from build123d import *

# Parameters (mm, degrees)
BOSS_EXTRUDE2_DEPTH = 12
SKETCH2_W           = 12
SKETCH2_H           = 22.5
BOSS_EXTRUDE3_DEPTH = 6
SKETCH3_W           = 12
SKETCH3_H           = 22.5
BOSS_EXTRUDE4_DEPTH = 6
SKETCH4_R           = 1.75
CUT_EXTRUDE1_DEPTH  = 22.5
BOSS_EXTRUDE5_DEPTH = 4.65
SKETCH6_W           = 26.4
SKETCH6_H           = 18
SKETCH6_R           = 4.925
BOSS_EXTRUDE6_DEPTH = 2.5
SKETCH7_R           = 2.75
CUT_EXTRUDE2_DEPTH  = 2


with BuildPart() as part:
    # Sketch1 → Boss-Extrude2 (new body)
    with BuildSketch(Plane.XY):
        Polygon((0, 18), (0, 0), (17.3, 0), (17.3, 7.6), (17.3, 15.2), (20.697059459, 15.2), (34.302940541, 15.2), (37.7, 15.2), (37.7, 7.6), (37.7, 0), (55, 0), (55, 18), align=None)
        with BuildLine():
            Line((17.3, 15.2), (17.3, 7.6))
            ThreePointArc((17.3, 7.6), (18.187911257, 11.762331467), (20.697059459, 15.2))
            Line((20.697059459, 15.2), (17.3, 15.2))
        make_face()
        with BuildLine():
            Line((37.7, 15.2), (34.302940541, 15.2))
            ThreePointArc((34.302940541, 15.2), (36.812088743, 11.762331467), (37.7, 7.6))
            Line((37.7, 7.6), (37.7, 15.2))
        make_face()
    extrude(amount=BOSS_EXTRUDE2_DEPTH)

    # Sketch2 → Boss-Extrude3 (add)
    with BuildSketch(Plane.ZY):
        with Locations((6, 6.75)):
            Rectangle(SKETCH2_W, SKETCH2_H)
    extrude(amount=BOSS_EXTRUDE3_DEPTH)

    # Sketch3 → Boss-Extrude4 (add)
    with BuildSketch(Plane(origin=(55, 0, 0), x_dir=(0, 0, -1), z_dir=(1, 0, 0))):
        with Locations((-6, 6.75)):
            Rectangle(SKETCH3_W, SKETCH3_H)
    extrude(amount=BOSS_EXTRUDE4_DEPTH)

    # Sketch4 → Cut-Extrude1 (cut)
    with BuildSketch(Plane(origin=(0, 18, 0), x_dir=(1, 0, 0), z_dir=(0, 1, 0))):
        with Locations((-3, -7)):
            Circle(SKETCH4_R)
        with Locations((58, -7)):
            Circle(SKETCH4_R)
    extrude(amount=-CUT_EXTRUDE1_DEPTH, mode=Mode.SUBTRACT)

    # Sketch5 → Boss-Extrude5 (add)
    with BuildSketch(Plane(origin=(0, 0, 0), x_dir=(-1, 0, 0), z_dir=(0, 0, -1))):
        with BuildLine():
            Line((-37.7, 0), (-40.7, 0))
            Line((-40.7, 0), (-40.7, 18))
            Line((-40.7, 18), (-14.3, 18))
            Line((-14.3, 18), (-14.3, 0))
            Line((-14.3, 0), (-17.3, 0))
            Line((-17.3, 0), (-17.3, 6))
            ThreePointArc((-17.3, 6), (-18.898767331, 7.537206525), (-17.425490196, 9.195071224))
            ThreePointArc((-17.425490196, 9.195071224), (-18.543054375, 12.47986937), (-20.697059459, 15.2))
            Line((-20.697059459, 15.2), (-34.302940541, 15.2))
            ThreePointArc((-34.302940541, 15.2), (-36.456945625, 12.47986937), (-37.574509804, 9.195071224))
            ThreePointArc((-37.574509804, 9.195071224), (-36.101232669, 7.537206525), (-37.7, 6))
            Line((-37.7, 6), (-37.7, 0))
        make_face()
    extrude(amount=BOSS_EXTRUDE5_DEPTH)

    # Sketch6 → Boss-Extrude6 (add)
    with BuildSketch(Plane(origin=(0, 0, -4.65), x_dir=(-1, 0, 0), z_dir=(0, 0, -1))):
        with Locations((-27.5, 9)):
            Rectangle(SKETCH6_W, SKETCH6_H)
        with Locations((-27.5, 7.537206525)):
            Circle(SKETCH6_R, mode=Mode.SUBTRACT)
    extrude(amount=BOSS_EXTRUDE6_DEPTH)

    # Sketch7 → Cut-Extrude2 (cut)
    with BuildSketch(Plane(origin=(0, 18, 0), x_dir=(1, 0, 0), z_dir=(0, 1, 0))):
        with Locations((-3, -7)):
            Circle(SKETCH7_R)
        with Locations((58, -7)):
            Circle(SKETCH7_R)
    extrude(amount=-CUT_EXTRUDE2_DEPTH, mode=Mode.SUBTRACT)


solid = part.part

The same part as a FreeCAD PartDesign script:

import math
import FreeCAD as App
import Part
import Sketcher
from FreeCAD import Vector

doc = App.newDocument("Part")
params = doc.addObject("Spreadsheet::Sheet", "Params")
for row, (alias, value) in enumerate([
    ("sketch1_radius", "10.2 mm"),
    ("sketch1_width", "55 mm"),
    ("sketch1_height", "18 mm"),
    ("sketch1_height2", "7.6 mm"),
    ("pad1_length", "12 mm"),
    ("sketch2_height", "12 mm"),
    ("sketch2_width", "22.5 mm"),
    ("pad2_length", "6 mm"),
    ("sketch3_height", "12 mm"),
    ("sketch3_width", "22.5 mm"),
    ("pad3_length", "6 mm"),
    ("sketch4_diameter", "3.5 mm"),
    ("pocket1_length", "22.5 mm"),
    ("sketch5_radius", "1.6 mm"),
    ("sketch5_radius2", "10.2 mm"),
    ("sketch5_width", "3 mm"),
    ("sketch5_height", "6 mm"),
    ("sketch5_height2", "18 mm"),
    ("pad4_length", "4.65 mm"),
    ("sketch6_diameter", "9.85 mm"),
    ("sketch6_height", "18 mm"),
    ("sketch6_width", "26.4 mm"),
    ("pad5_length", "2.5 mm"),
    ("sketch7_diameter", "5.5 mm"),
    ("pocket2_length", "2 mm"),
], start=1):
    params.set(f"A{row}", alias)
    params.set(f"B{row}", "=" + value)
    params.setAlias(f"B{row}", alias)

body = doc.addObject("PartDesign::Body", "Body")

# Sketch on XY plane
sketch1 = body.newObject("Sketcher::SketchObject", "Sketch")
sketch1.AttachmentSupport = (doc.getObject("XY_Plane"), [""])
sketch1.MapMode = "FlatFace"
sketch1.addGeometry(Part.LineSegment(Vector(0, 18, 0), Vector(0, 0, 0)), False)
sketch1.addGeometry(Part.LineSegment(Vector(0, 0, 0), Vector(17, 0, 0)), False)
sketch1.addGeometry(Part.LineSegment(Vector(17, 0, 0), Vector(17, 8, 0)), False)
sketch1.addGeometry(Part.ArcOfCircle(Part.Circle(Vector(28, 8, 0), Vector(0, 0, 1), 10), math.radians(132), math.radians(180)), False)
sketch1.addGeometry(Part.LineSegment(Vector(21, 15, 0), Vector(34, 15, 0)), False)
sketch1.addGeometry(Part.ArcOfCircle(Part.Circle(Vector(27, 8, 0), Vector(0, 0, 1), 10), math.radians(0), math.radians(48)), False)
sketch1.addGeometry(Part.LineSegment(Vector(38, 8, 0), Vector(38, 0, 0)), False)
sketch1.addGeometry(Part.LineSegment(Vector(38, 0, 0), Vector(55, 0, 0)), False)
sketch1.addGeometry(Part.LineSegment(Vector(55, 0, 0), Vector(55, 18, 0)), False)
sketch1.addGeometry(Part.LineSegment(Vector(55, 18, 0), Vector(0, 18, 0)), False)
sketch1.addConstraint(Sketcher.Constraint("Coincident", 0, 2, 1, 1))
sketch1.addConstraint(Sketcher.Constraint("Coincident", 1, 2, 2, 1))
sketch1.addConstraint(Sketcher.Constraint("Tangent", 2, 2, 3, 2))
sketch1.addConstraint(Sketcher.Constraint("Coincident", 3, 1, 4, 1))
sketch1.addConstraint(Sketcher.Constraint("Coincident", 4, 2, 5, 2))
sketch1.addConstraint(Sketcher.Constraint("Tangent", 5, 1, 6, 1))
sketch1.addConstraint(Sketcher.Constraint("Coincident", 6, 2, 7, 1))
sketch1.addConstraint(Sketcher.Constraint("Coincident", 7, 2, 8, 1))
sketch1.addConstraint(Sketcher.Constraint("Coincident", 8, 2, 9, 1))
sketch1.addConstraint(Sketcher.Constraint("Coincident", 9, 2, 0, 1))
sketch1.addConstraint(Sketcher.Constraint("Vertical", 0))
sketch1.addConstraint(Sketcher.Constraint("Horizontal", 1))
sketch1.addConstraint(Sketcher.Constraint("Vertical", 2))
sketch1.addConstraint(Sketcher.Constraint("Horizontal", 4))
sketch1.addConstraint(Sketcher.Constraint("Vertical", 6))
sketch1.addConstraint(Sketcher.Constraint("Horizontal", 7))
sketch1.addConstraint(Sketcher.Constraint("Vertical", 8))
sketch1.addConstraint(Sketcher.Constraint("Horizontal", 9))
sketch1.addConstraint(Sketcher.Constraint("Coincident", 0, 2, -1, 1))
sketch1.addConstraint(Sketcher.Constraint("Coincident", 5, 3, 3, 3))
sketch1.addConstraint(Sketcher.Constraint("Equal", 3, 5))
sketch1.addConstraint(Sketcher.Constraint("PointOnObject", 6, 2, -1))
sketch1.addConstraint(Sketcher.Constraint("Equal", 1, 7))
sketch1.addConstraint(Sketcher.Constraint("Radius", 3, 10.2))
sketch1.addConstraint(Sketcher.Constraint("DistanceX", 9, 2, 9, 1, 55.0))
sketch1.addConstraint(Sketcher.Constraint("DistanceY", 0, 2, 0, 1, 18.0))
sketch1.addConstraint(Sketcher.Constraint("DistanceY", 2, 1, 2, 2, 7.6))
sketch1.addConstraint(Sketcher.Constraint("DistanceY", -1, 1, 3, 1, 15.2))
sketch1.setExpression("Constraints[23]", "Params.sketch1_radius")
sketch1.setExpression("Constraints[24]", "Params.sketch1_width")
sketch1.setExpression("Constraints[25]", "Params.sketch1_height")
sketch1.setExpression("Constraints[26]", "Params.sketch1_height2")
pad1 = body.newObject("PartDesign::Pad", "Pad")
pad1.Profile = sketch1
pad1.setExpression("Length", "Params.pad1_length")

# Sketch on YZ plane
sketch2 = body.newObject("Sketcher::SketchObject", "Sketch001")
sketch2.AttachmentSupport = (doc.getObject("YZ_Plane"), [""])
sketch2.MapMode = "FlatFace"
sketch2.addGeometry(Part.LineSegment(Vector(18, 0, 0), Vector(-4, 0, 0)), False)
sketch2.addGeometry(Part.LineSegment(Vector(-4, 0, 0), Vector(-4, 12, 0)), False)
sketch2.addGeometry(Part.LineSegment(Vector(-4, 12, 0), Vector(18, 12, 0)), False)
sketch2.addGeometry(Part.LineSegment(Vector(18, 12, 0), Vector(18, 0, 0)), False)
sketch2.addConstraint(Sketcher.Constraint("Coincident", 0, 2, 1, 1))
sketch2.addConstraint(Sketcher.Constraint("Coincident", 1, 2, 2, 1))
sketch2.addConstraint(Sketcher.Constraint("Coincident", 2, 2, 3, 1))
sketch2.addConstraint(Sketcher.Constraint("Coincident", 3, 2, 0, 1))
sketch2.addConstraint(Sketcher.Constraint("Horizontal", 0))
sketch2.addConstraint(Sketcher.Constraint("Vertical", 1))
sketch2.addConstraint(Sketcher.Constraint("Horizontal", 2))
sketch2.addConstraint(Sketcher.Constraint("Vertical", 3))
sketch2.addConstraint(Sketcher.Constraint("PointOnObject", 0, 2, -1))
sketch2.addConstraint(Sketcher.Constraint("DistanceY", 1, 1, 1, 2, 12.0))
sketch2.addConstraint(Sketcher.Constraint("DistanceX", 0, 2, 0, 1, 22.5))
sketch2.addConstraint(Sketcher.Constraint("DistanceX", -1, 1, 2, 2, 18.0))
sketch2.setExpression("Constraints[9]", "Params.sketch2_height")
sketch2.setExpression("Constraints[10]", "Params.sketch2_width")
pad2 = body.newObject("PartDesign::Pad", "Pad001")
pad2.Profile = sketch2
pad2.setExpression("Length", "Params.pad2_length")
pad2.Reversed = True

# Sketch on YZ plane
sketch3 = body.newObject("Sketcher::SketchObject", "Sketch002")
sketch3.AttachmentSupport = (doc.getObject("YZ_Plane"), [""])
sketch3.MapMode = "FlatFace"
sketch3.AttachmentOffset = App.Placement(Vector(0, 0, 55), App.Rotation())
sketch3.addGeometry(Part.LineSegment(Vector(18, 12, 0), Vector(-4, 12, 0)), False)
sketch3.addGeometry(Part.LineSegment(Vector(-4, 12, 0), Vector(-4, 0, 0)), False)
sketch3.addGeometry(Part.LineSegment(Vector(-4, 0, 0), Vector(18, 0, 0)), False)
sketch3.addGeometry(Part.LineSegment(Vector(18, 0, 0), Vector(18, 12, 0)), False)
sketch3.addConstraint(Sketcher.Constraint("Coincident", 0, 2, 1, 1))
sketch3.addConstraint(Sketcher.Constraint("Coincident", 1, 2, 2, 1))
sketch3.addConstraint(Sketcher.Constraint("Coincident", 2, 2, 3, 1))
sketch3.addConstraint(Sketcher.Constraint("Coincident", 3, 2, 0, 1))
sketch3.addConstraint(Sketcher.Constraint("Horizontal", 0))
sketch3.addConstraint(Sketcher.Constraint("Vertical", 1))
sketch3.addConstraint(Sketcher.Constraint("Horizontal", 2))
sketch3.addConstraint(Sketcher.Constraint("Vertical", 3))
sketch3.addConstraint(Sketcher.Constraint("PointOnObject", 1, 2, -1))
sketch3.addConstraint(Sketcher.Constraint("DistanceY", 1, 2, 1, 1, 12.0))
sketch3.addConstraint(Sketcher.Constraint("DistanceX", 0, 2, 0, 1, 22.5))
sketch3.addConstraint(Sketcher.Constraint("DistanceX", -1, 1, 2, 2, 18.0))
sketch3.setExpression("Constraints[9]", "Params.sketch3_height")
sketch3.setExpression("Constraints[10]", "Params.sketch3_width")
pad3 = body.newObject("PartDesign::Pad", "Pad002")
pad3.Profile = sketch3
pad3.setExpression("Length", "Params.pad3_length")

# Sketch on XZ plane
sketch4 = body.newObject("Sketcher::SketchObject", "Sketch003")
sketch4.AttachmentSupport = (doc.getObject("XZ_Plane"), [""])
sketch4.MapMode = "FlatFace"
sketch4.AttachmentOffset = App.Placement(Vector(0, 0, -18), App.Rotation())
sketch4.addGeometry(Part.Circle(Vector(-3, 7, 0), Vector(0, 0, 1), 1.8), False)
sketch4.addGeometry(Part.Circle(Vector(58, 7, 0), Vector(0, 0, 1), 1.8), False)
sketch4.addConstraint(Sketcher.Constraint("Equal", 0, 1))
sketch4.addConstraint(Sketcher.Constraint("Horizontal", 0, 3, 1, 3))
sketch4.addConstraint(Sketcher.Constraint("Diameter", 0, 3.5))
sketch4.addConstraint(Sketcher.Constraint("DistanceX", 0, 3, -1, 1, 3.0))
sketch4.addConstraint(Sketcher.Constraint("DistanceY", -1, 1, 0, 3, 7.0))
sketch4.addConstraint(Sketcher.Constraint("DistanceX", -1, 1, 1, 3, 58.0))
sketch4.setExpression("Constraints[2]", "Params.sketch4_diameter")
pocket1 = body.newObject("PartDesign::Pocket", "Pocket")
pocket1.Profile = sketch4
pocket1.setExpression("Length", "Params.pocket1_length")
pocket1.Reversed = True

# Sketch on XY plane
sketch5 = body.newObject("Sketcher::SketchObject", "Sketch004")
sketch5.AttachmentSupport = (doc.getObject("XY_Plane"), [""])
sketch5.MapMode = "FlatFace"
sketch5.addGeometry(Part.LineSegment(Vector(40.7, 0, 0), Vector(37.7, 0, 0)), False)
sketch5.addGeometry(Part.LineSegment(Vector(37.7, 0, 0), Vector(37.7, 6, 0)), False)
sketch5.addGeometry(Part.ArcOfCircle(Part.Circle(Vector(37.7, 7.6, 0), Vector(0, 0, 1), 1.6), math.radians(94), math.radians(270)), False)
sketch5.addGeometry(Part.ArcOfCircle(Part.Circle(Vector(27.5, 7.6, 0), Vector(0, 0, 1), 10.2), math.radians(9), math.radians(48)), False)
sketch5.addGeometry(Part.LineSegment(Vector(34.3, 15.2, 0), Vector(20.7, 15.2, 0)), False)
sketch5.addGeometry(Part.ArcOfCircle(Part.Circle(Vector(27.5, 7.6, 0), Vector(0, 0, 1), 10.2), math.radians(132), math.radians(171)), False)
sketch5.addGeometry(Part.ArcOfCircle(Part.Circle(Vector(17.3, 7.6, 0), Vector(0, 0, 1), 1.6), math.radians(-90), math.radians(86)), False)
sketch5.addGeometry(Part.LineSegment(Vector(17.3, 6, 0), Vector(17.3, 0, 0)), False)
sketch5.addGeometry(Part.LineSegment(Vector(17.3, 0, 0), Vector(14.3, 0, 0)), False)
sketch5.addGeometry(Part.LineSegment(Vector(14.3, 0, 0), Vector(14.3, 18, 0)), False)
sketch5.addGeometry(Part.LineSegment(Vector(14.3, 18, 0), Vector(40.7, 18, 0)), False)
sketch5.addGeometry(Part.LineSegment(Vector(40.7, 18, 0), Vector(40.7, 0, 0)), False)
sketch5.addConstraint(Sketcher.Constraint("Coincident", 0, 2, 1, 1))
sketch5.addConstraint(Sketcher.Constraint("Coincident", 1, 2, 2, 2))
sketch5.addConstraint(Sketcher.Constraint("Coincident", 2, 1, 3, 1))
sketch5.addConstraint(Sketcher.Constraint("Coincident", 3, 2, 4, 1))
sketch5.addConstraint(Sketcher.Constraint("Coincident", 4, 2, 5, 1))
sketch5.addConstraint(Sketcher.Constraint("Coincident", 5, 2, 6, 2))
sketch5.addConstraint(Sketcher.Constraint("Coincident", 6, 1, 7, 1))
sketch5.addConstraint(Sketcher.Constraint("Coincident", 7, 2, 8, 1))
sketch5.addConstraint(Sketcher.Constraint("Coincident", 8, 2, 9, 1))
sketch5.addConstraint(Sketcher.Constraint("Coincident", 9, 2, 10, 1))
sketch5.addConstraint(Sketcher.Constraint("Coincident", 10, 2, 11, 1))
sketch5.addConstraint(Sketcher.Constraint("Coincident", 11, 2, 0, 1))
sketch5.addConstraint(Sketcher.Constraint("Horizontal", 0))
sketch5.addConstraint(Sketcher.Constraint("Vertical", 1))
sketch5.addConstraint(Sketcher.Constraint("Horizontal", 4))
sketch5.addConstraint(Sketcher.Constraint("Vertical", 7))
sketch5.addConstraint(Sketcher.Constraint("Horizontal", 8))
sketch5.addConstraint(Sketcher.Constraint("Vertical", 9))
sketch5.addConstraint(Sketcher.Constraint("Horizontal", 10))
sketch5.addConstraint(Sketcher.Constraint("Vertical", 11))
sketch5.addConstraint(Sketcher.Constraint("Coincident", 5, 3, 3, 3))
sketch5.addConstraint(Sketcher.Constraint("Equal", 3, 5))
sketch5.addConstraint(Sketcher.Constraint("Equal", 2, 6))
sketch5.addConstraint(Sketcher.Constraint("PointOnObject", 0, 2, -1))
sketch5.addConstraint(Sketcher.Constraint("PointOnObject", 7, 2, -1))
sketch5.addConstraint(Sketcher.Constraint("Horizontal", 2, 3, 3, 3))
sketch5.addConstraint(Sketcher.Constraint("Horizontal", 5, 3, 6, 3))
sketch5.addConstraint(Sketcher.Constraint("Horizontal", 2, 1, 5, 2))
sketch5.addConstraint(Sketcher.Constraint("Vertical", 2, 3, 0, 2))
sketch5.addConstraint(Sketcher.Constraint("Equal", 0, 8))
sketch5.addConstraint(Sketcher.Constraint("Radius", 2, 1.6))
sketch5.addConstraint(Sketcher.Constraint("Radius", 3, 10.2))
sketch5.addConstraint(Sketcher.Constraint("DistanceX", 0, 2, 0, 1, 3.0))
sketch5.addConstraint(Sketcher.Constraint("DistanceY", 1, 1, 1, 2, 6.0))
sketch5.addConstraint(Sketcher.Constraint("DistanceY", 9, 1, 9, 2, 18.0))
sketch5.addConstraint(Sketcher.Constraint("DistanceX", 10, 1, 10, 2, 26.4))
sketch5.addConstraint(Sketcher.Constraint("DistanceX", 8, 2, 6, 3, 3.0))
sketch5.addConstraint(Sketcher.Constraint("DistanceX", -1, 1, 2, 3, 37.7))
sketch5.addConstraint(Sketcher.Constraint("DistanceY", -1, 1, 3, 2, 15.2))
sketch5.setExpression("Constraints[30]", "Params.sketch5_radius")
sketch5.setExpression("Constraints[31]", "Params.sketch5_radius2")
sketch5.setExpression("Constraints[32]", "Params.sketch5_width")
sketch5.setExpression("Constraints[33]", "Params.sketch5_height")
sketch5.setExpression("Constraints[34]", "Params.sketch5_height2")
pad4 = body.newObject("PartDesign::Pad", "Pad003")
pad4.Profile = sketch5
pad4.setExpression("Length", "Params.pad4_length")
pad4.Reversed = True

# Sketch on XY plane
sketch6 = body.newObject("Sketcher::SketchObject", "Sketch005")
sketch6.AttachmentSupport = (doc.getObject("XY_Plane"), [""])
sketch6.MapMode = "FlatFace"
sketch6.AttachmentOffset = App.Placement(Vector(0, 0, -4.65), App.Rotation())
sketch6.addGeometry(Part.LineSegment(Vector(40.7, 18, 0), Vector(40.7, 0, 0)), False)
sketch6.addGeometry(Part.LineSegment(Vector(40.7, 0, 0), Vector(14.3, 0, 0)), False)
sketch6.addGeometry(Part.LineSegment(Vector(14.3, 0, 0), Vector(14.3, 18, 0)), False)
sketch6.addGeometry(Part.LineSegment(Vector(14.3, 18, 0), Vector(40.7, 18, 0)), False)
sketch6.addGeometry(Part.Circle(Vector(27.5, 7.5, 0), Vector(0, 0, 1), 4.9), False)
sketch6.addConstraint(Sketcher.Constraint("Coincident", 0, 2, 1, 1))
sketch6.addConstraint(Sketcher.Constraint("Coincident", 1, 2, 2, 1))
sketch6.addConstraint(Sketcher.Constraint("Coincident", 2, 2, 3, 1))
sketch6.addConstraint(Sketcher.Constraint("Coincident", 3, 2, 0, 1))
sketch6.addConstraint(Sketcher.Constraint("Vertical", 0))
sketch6.addConstraint(Sketcher.Constraint("Horizontal", 1))
sketch6.addConstraint(Sketcher.Constraint("Vertical", 2))
sketch6.addConstraint(Sketcher.Constraint("Horizontal", 3))
sketch6.addConstraint(Sketcher.Constraint("PointOnObject", 0, 2, -1))
sketch6.addConstraint(Sketcher.Constraint("Diameter", 4, 9.85))
sketch6.addConstraint(Sketcher.Constraint("DistanceY", 0, 2, 0, 1, 18.0))
sketch6.addConstraint(Sketcher.Constraint("DistanceX", 1, 2, 1, 1, 26.4))
sketch6.addConstraint(Sketcher.Constraint("DistanceX", -1, 1, 4, 3, 27.5))
sketch6.addConstraint(Sketcher.Constraint("DistanceX", -1, 1, 0, 2, 40.7))
sketch6.addConstraint(Sketcher.Constraint("DistanceY", -1, 1, 4, 3, 7.537207))
sketch6.setExpression("Constraints[9]", "Params.sketch6_diameter")
sketch6.setExpression("Constraints[10]", "Params.sketch6_height")
sketch6.setExpression("Constraints[11]", "Params.sketch6_width")
pad5 = body.newObject("PartDesign::Pad", "Pad004")
pad5.Profile = sketch6
pad5.setExpression("Length", "Params.pad5_length")
pad5.Reversed = True

# Sketch on XZ plane
sketch7 = body.newObject("Sketcher::SketchObject", "Sketch006")
sketch7.AttachmentSupport = (doc.getObject("XZ_Plane"), [""])
sketch7.MapMode = "FlatFace"
sketch7.AttachmentOffset = App.Placement(Vector(0, 0, -18), App.Rotation())
sketch7.addGeometry(Part.Circle(Vector(-3, 7, 0), Vector(0, 0, 1), 2.8), False)
sketch7.addGeometry(Part.Circle(Vector(58, 7, 0), Vector(0, 0, 1), 2.8), False)
sketch7.addConstraint(Sketcher.Constraint("Equal", 0, 1))
sketch7.addConstraint(Sketcher.Constraint("Horizontal", 0, 3, 1, 3))
sketch7.addConstraint(Sketcher.Constraint("Diameter", 0, 5.5))
sketch7.addConstraint(Sketcher.Constraint("DistanceX", 0, 3, -1, 1, 3.0))
sketch7.addConstraint(Sketcher.Constraint("DistanceY", -1, 1, 0, 3, 7.0))
sketch7.addConstraint(Sketcher.Constraint("DistanceX", -1, 1, 1, 3, 58.0))
sketch7.setExpression("Constraints[2]", "Params.sketch7_diameter")
pocket2 = body.newObject("PartDesign::Pocket", "Pocket001")
pocket2.Profile = sketch7
pocket2.setExpression("Length", "Params.pocket2_length")
pocket2.Reversed = True

doc.recompute()
